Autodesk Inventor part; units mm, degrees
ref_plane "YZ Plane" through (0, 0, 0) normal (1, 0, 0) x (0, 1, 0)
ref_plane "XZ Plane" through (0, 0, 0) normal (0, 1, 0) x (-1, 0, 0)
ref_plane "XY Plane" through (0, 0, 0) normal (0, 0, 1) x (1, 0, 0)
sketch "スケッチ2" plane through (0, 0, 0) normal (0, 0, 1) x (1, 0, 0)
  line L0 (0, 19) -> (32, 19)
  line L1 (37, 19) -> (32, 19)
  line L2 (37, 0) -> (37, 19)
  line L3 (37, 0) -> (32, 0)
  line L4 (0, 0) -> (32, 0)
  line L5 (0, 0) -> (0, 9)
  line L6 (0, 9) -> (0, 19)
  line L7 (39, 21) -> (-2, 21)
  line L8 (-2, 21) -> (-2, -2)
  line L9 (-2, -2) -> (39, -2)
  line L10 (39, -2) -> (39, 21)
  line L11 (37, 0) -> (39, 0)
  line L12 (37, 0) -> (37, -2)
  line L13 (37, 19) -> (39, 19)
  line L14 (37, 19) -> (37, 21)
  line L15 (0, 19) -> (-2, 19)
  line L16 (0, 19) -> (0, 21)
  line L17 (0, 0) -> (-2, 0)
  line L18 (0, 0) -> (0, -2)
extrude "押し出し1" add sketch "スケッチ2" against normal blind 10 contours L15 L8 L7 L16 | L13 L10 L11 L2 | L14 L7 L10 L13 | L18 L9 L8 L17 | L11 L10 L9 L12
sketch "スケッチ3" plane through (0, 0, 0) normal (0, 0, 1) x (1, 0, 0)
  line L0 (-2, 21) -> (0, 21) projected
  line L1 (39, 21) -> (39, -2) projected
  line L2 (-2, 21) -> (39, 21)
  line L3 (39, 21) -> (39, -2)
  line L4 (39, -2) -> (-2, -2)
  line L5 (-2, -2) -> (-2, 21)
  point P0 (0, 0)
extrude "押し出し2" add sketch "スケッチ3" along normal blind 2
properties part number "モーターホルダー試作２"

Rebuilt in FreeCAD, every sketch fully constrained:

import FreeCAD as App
import Part
import Sketcher

doc = App.newDocument("Part")
body = doc.addObject("PartDesign::Body", "Body")
body.AllowCompound = True

# Sketch on XY plane
sketch1 = body.newObject("Sketcher::SketchObject", "Sketch")
sketch1.AttachmentSupport = (doc.getObject("XY_Plane"), [""])
sketch1.MapMode = "FlatFace"
sketch1.addGeometry([
    Part.LineSegment(App.Vector(-2, 19, 0), App.Vector(0, 19, 0)),  # 0
    Part.LineSegment(App.Vector(0, 19, 0), App.Vector(0, 21, 0)),  # 1
    Part.LineSegment(App.Vector(0, 21, 0), App.Vector(-2, 21, 0)),  # 2
    Part.LineSegment(App.Vector(-2, 21, 0), App.Vector(-2, 19, 0)),  # 3
    Part.LineSegment(App.Vector(39, 21, 0), App.Vector(37, 21, 0)),  # 4
    Part.LineSegment(App.Vector(37, 21, 0), App.Vector(37, -2, 0)),  # 5
    Part.LineSegment(App.Vector(37, -2, 0), App.Vector(39, -2, 0)),  # 6
    Part.LineSegment(App.Vector(39, -2, 0), App.Vector(39, 21, 0)),  # 7
    Part.LineSegment(App.Vector(0, -2, 0), App.Vector(0, 0, 0)),  # 8
    Part.LineSegment(App.Vector(0, 0, 0), App.Vector(-2, 0, 0)),  # 9
    Part.LineSegment(App.Vector(-2, 0, 0), App.Vector(-2, -2, 0)),  # 10
    Part.LineSegment(App.Vector(-2, -2, 0), App.Vector(0, -2, 0)),  # 11
], False)
sketch1.addConstraint([
    Sketcher.Constraint("Coincident", 0, 2, 1, 1),
    Sketcher.Constraint("Coincident", 1, 2, 2, 1),
    Sketcher.Constraint("Coincident", 2, 2, 3, 1),
    Sketcher.Constraint("Coincident", 3, 2, 0, 1),
    Sketcher.Constraint("Coincident", 4, 2, 5, 1),
    Sketcher.Constraint("Coincident", 5, 2, 6, 1),
    Sketcher.Constraint("Coincident", 6, 2, 7, 1),
    Sketcher.Constraint("Coincident", 7, 2, 4, 1),
    Sketcher.Constraint("Coincident", 8, 2, 9, 1),
    Sketcher.Constraint("Coincident", 9, 2, 10, 1),
    Sketcher.Constraint("Coincident", 10, 2, 11, 1),
    Sketcher.Constraint("Coincident", 11, 2, 8, 1),
    Sketcher.Constraint("Horizontal", 0),
    Sketcher.Constraint("Vertical", 1),
    Sketcher.Constraint("Horizontal", 2),
    Sketcher.Constraint("Vertical", 3),
    Sketcher.Constraint("Horizontal", 4),
    Sketcher.Constraint("Vertical", 5),
    Sketcher.Constraint("Horizontal", 6),
    Sketcher.Constraint("Vertical", 7),
    Sketcher.Constraint("Vertical", 8),
    Sketcher.Constraint("Horizontal", 9),
    Sketcher.Constraint("Vertical", 10),
    Sketcher.Constraint("Horizontal", 11),
    Sketcher.Constraint("Coincident", 8, 2, -1, 1),
    Sketcher.Constraint("PointOnObject", 0, 2, -2),
    Sketcher.Constraint("Horizontal", 2, 2, 4, 2),
    Sketcher.Constraint("Horizontal", 6, 2, 10, 2),
    Sketcher.Constraint("Vertical", 3, 2, 9, 2),
    Sketcher.Constraint("Equal", 2, 4),
    Sketcher.Constraint("Equal", 11, 1),
    Sketcher.Constraint("Equal", 3, 8),
    Sketcher.Constraint("DistanceX", 0, 1, 0, 2, 2.0),
    Sketcher.Constraint("DistanceY", 5, 2, 5, 1, 23.0),
    Sketcher.Constraint("DistanceX", -1, 1, 4, 2, 37.0),
])
pad1 = body.newObject("PartDesign::Pad", "Pad")
pad1.Profile = sketch1
pad1.Length = 10
pad1.Reversed = True

# Sketch on XY plane
sketch2 = body.newObject("Sketcher::SketchObject", "Sketch001")
sketch2.AttachmentSupport = (doc.getObject("XY_Plane"), [""])
sketch2.MapMode = "FlatFace"
sketch2.addGeometry([
    Part.LineSegment(App.Vector(39, 21, 0), App.Vector(-2, 21, 0)),
    Part.LineSegment(App.Vector(-2, 21, 0), App.Vector(-2, -2, 0)),
    Part.LineSegment(App.Vector(-2, -2, 0), App.Vector(39, -2, 0)),
    Part.LineSegment(App.Vector(39, -2, 0), App.Vector(39, 21, 0)),
], False)
sketch2.addConstraint([
    Sketcher.Constraint("Coincident", 0, 2, 1, 1),
    Sketcher.Constraint("Coincident", 1, 2, 2, 1),
    Sketcher.Constraint("Coincident", 2, 2, 3, 1),
    Sketcher.Constraint("Coincident", 3, 2, 0, 1),
    Sketcher.Constraint("Horizontal", 0),
    Sketcher.Constraint("Vertical", 1),
    Sketcher.Constraint("Horizontal", 2),
    Sketcher.Constraint("Vertical", 3),
    Sketcher.Constraint("DistanceX", 0, 2, 0, 1, 41.0),
    Sketcher.Constraint("DistanceY", 1, 2, 1, 1, 23.0),
    Sketcher.Constraint("DistanceX", 0, 2, -1, 1, 2.0),
    Sketcher.Constraint("DistanceY", -1, 1, 0, 2, 21.0),
])
pad2 = body.newObject("PartDesign::Pad", "Pad001")
pad2.Profile = sketch2
pad2.Length = 2

doc.recompute()
